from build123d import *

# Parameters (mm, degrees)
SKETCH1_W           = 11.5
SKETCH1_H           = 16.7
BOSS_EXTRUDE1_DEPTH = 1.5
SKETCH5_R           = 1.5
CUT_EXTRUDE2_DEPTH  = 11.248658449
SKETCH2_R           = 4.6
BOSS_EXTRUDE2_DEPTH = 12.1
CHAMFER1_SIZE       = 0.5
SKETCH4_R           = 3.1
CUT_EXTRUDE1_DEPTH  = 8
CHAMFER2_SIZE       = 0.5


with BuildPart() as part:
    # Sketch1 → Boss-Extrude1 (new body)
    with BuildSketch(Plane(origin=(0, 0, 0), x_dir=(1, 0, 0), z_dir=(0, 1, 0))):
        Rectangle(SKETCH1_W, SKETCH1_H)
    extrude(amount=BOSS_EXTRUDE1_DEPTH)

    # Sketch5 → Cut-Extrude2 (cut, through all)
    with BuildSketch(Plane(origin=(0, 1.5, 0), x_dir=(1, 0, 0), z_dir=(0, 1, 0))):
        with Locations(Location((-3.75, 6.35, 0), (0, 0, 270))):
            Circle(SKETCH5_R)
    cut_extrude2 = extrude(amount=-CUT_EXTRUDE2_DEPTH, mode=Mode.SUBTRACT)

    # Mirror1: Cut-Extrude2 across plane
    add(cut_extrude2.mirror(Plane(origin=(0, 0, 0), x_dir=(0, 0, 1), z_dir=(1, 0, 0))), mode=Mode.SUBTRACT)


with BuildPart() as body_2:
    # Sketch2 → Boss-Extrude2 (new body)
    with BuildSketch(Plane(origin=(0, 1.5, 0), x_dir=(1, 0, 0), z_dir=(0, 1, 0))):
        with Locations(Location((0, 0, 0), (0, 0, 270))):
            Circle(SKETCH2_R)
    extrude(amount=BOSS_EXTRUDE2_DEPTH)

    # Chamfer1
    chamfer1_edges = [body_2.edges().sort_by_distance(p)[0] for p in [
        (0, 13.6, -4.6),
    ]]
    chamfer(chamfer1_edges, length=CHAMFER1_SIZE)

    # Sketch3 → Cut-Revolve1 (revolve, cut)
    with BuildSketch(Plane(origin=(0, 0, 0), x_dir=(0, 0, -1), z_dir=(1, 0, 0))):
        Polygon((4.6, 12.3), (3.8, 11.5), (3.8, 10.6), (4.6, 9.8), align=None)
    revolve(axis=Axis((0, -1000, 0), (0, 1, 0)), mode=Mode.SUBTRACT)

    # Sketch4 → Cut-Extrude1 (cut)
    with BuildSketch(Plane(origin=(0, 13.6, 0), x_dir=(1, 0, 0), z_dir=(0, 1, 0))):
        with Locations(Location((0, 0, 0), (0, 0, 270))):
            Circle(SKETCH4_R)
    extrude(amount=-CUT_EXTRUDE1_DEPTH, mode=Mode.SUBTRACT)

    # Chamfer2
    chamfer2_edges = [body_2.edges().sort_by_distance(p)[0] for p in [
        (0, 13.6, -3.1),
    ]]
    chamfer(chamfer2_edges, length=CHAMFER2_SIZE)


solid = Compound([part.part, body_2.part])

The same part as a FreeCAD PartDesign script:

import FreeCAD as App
import Part
import Sketcher


def edges_at(feature, points):
    """Names of the edges that pass closest to the given points."""
    edges = feature.Shape.Edges
    near = lambda p: min(range(len(edges)), key=lambda i: edges[i].distToShape(Part.Vertex(*p))[0])
    return sorted({f"Edge{near(p) + 1}" for p in points})

doc = App.newDocument("Part")
params = doc.addObject("Spreadsheet::Sheet", "Params")
for row, (alias, value) in enumerate([
    ("sketch1_width", "11.5 mm"),
    ("sketch1_height", "16.7 mm"),
    ("pad1_length", "1.5 mm"),
    ("sketch2_diameter", "3 mm"),
    ("sketch3_diameter", "9.2 mm"),
    ("pad2_length", "12.1 mm"),
    ("chamfer_size", "0.5 mm"),
    ("sketch4_width", "0.9 mm"),
    ("sketch4_width2", "2.5 mm"),
    ("groove_angle", "360 deg"),
    ("sketch5_diameter", "6.2 mm"),
    ("pocket2_length", "8 mm"),
    ("chamfer2_size", "0.5 mm"),
], start=1):
    params.set(f"A{row}", alias)
    params.set(f"B{row}", "=" + value)
    params.setAlias(f"B{row}", alias)

body = doc.addObject("PartDesign::Body", "Body")

# Sketch on XZ plane
sketch1 = doc.addObject("Sketcher::SketchObject", "Sketch")
body.addObject(sketch1)
sketch1.AttachmentSupport = (doc.XZ_Plane, [""])
sketch1.MapMode = "FlatFace"
sketch1.addGeometry([
    Part.LineSegment(App.Vector(-6, -8, 0), App.Vector(-6, 8, 0)),
    Part.LineSegment(App.Vector(-6, 8, 0), App.Vector(6, 8, 0)),
    Part.LineSegment(App.Vector(6, 8, 0), App.Vector(6, -8, 0)),
    Part.LineSegment(App.Vector(6, -8, 0), App.Vector(-6, -8, 0)),
], False)
sketch1.addConstraint([
    Sketcher.Constraint("Coincident", 0, 2, 1, 1),
    Sketcher.Constraint("Coincident", 1, 2, 2, 1),
    Sketcher.Constraint("Coincident", 2, 2, 3, 1),
    Sketcher.Constraint("Coincident", 3, 2, 0, 1),
    Sketcher.Constraint("Vertical", 0),
    Sketcher.Constraint("Horizontal", 1),
    Sketcher.Constraint("Vertical", 2),
    Sketcher.Constraint("Horizontal", 3),
    Sketcher.Constraint("Symmetric", 0, 2, 2, 2, -1, 1),
    Sketcher.Constraint("DistanceX", 1, 1, 1, 2, 11.5),
    Sketcher.Constraint("DistanceY", 0, 1, 0, 2, 16.7),
])
sketch1.setExpression("Constraints[9]", "Params.sketch1_width")
sketch1.setExpression("Constraints[10]", "Params.sketch1_height")
pad1 = doc.addObject("PartDesign::Pad", "Pad")
body.addObject(pad1)
pad1.Profile = sketch1
pad1.setExpression("Length", "Params.pad1_length")
pad1.Reversed = True

# Sketch on XZ plane
sketch2 = doc.addObject("Sketcher::SketchObject", "Sketch001")
body.addObject(sketch2)
sketch2.AttachmentSupport = (doc.XZ_Plane, [""])
sketch2.MapMode = "FlatFace"
sketch2.AttachmentOffset = App.Placement(App.Vector(0, 0, -1.5), App.Rotation())
sketch2.addGeometry(Part.Circle(App.Vector(-3.8, -6.3, 0), App.Vector(0, 0, 1), 1.5), False)
sketch2.addConstraint([
    Sketcher.Constraint("Diameter", 0, 3.0),
    Sketcher.Constraint("DistanceX", 0, 3, -1, 1, 3.75),
    Sketcher.Constraint("DistanceY", 0, 3, -1, 1, 6.35),
])
sketch2.setExpression("Constraints[0]", "Params.sketch2_diameter")
pocket1 = doc.addObject("PartDesign::Pocket", "Pocket")
body.addObject(pocket1)
pocket1.Profile = sketch2
pocket1.Type = "ThroughAll"
pocket1.Reversed = True
doc.recompute()

mirrored = doc.addObject("PartDesign::Mirrored", "Mirrored")
body.addObject(mirrored)
mirrored.Originals = [pocket1]
mirrored.MirrorPlane = (doc.YZ_Plane, [""])
body.Tip = mirrored
body2 = doc.addObject("PartDesign::Body", "Body001")

# Sketch on XZ plane
sketch3 = doc.addObject("Sketcher::SketchObject", "Sketch002")
body2.addObject(sketch3)
sketch3.AttachmentSupport = (doc.getObject("XZ_Plane001"), [""])
sketch3.MapMode = "FlatFace"
sketch3.AttachmentOffset = App.Placement(App.Vector(0, 0, -1.5), App.Rotation())
sketch3.addGeometry(Part.Circle(App.Vector(0, 0, 0), App.Vector(0, 0, 1), 4.6), False)
sketch3.addConstraint([
    Sketcher.Constraint("Coincident", 0, 3, -1, 1),
    Sketcher.Constraint("Diameter", 0, 9.2),
])
sketch3.setExpression("Constraints[1]", "Params.sketch3_diameter")
pad2 = doc.addObject("PartDesign::Pad", "Pad001")
body2.addObject(pad2)
pad2.Profile = sketch3
pad2.setExpression("Length", "Params.pad2_length")
pad2.Reversed = True
doc.recompute()

chamfer = doc.addObject("PartDesign::Chamfer", "Chamfer")
body2.addObject(chamfer)
chamfer.Base = (pad2, edges_at(pad2, [(0, 13.6, -4.6)]))
chamfer.setExpression("Size", "Params.chamfer_size")

# Sketch on YZ plane
sketch4 = doc.addObject("Sketcher::SketchObject", "Sketch003")
body2.addObject(sketch4)
sketch4.AttachmentSupport = (doc.getObject("YZ_Plane001"), [""])
sketch4.MapMode = "FlatFace"
sketch4.addGeometry([
    Part.LineSegment(App.Vector(12.3, -4.6, 0), App.Vector(11.5, -3.8, 0)),
    Part.LineSegment(App.Vector(11.5, -3.8, 0), App.Vector(10.6, -3.8, 0)),
    Part.LineSegment(App.Vector(10.6, -3.8, 0), App.Vector(9.8, -4.6, 0)),
    Part.LineSegment(App.Vector(9.8, -4.6, 0), App.Vector(12.3, -4.6, 0)),
], False)
sketch4.addConstraint([
    Sketcher.Constraint("Coincident", 0, 2, 1, 1),
    Sketcher.Constraint("Coincident", 1, 2, 2, 1),
    Sketcher.Constraint("Coincident", 2, 2, 3, 1),
    Sketcher.Constraint("Coincident", 3, 2, 0, 1),
    Sketcher.Constraint("Horizontal", 1),
    Sketcher.Constraint("Horizontal", 3),
    Sketcher.Constraint("Perpendicular", 0, 2),
    Sketcher.Constraint("Equal", 0, 2),
    Sketcher.Constraint("DistanceX", 1, 2, 1, 1, 0.9),
    Sketcher.Constraint("DistanceX", 3, 1, 3, 2, 2.5),
    Sketcher.Constraint("DistanceX", -1, 1, 0, 2, 11.5),
    Sketcher.Constraint("DistanceY", 0, 2, -1, 1, 3.8),
])
sketch4.setExpression("Constraints[8]", "Params.sketch4_width")
sketch4.setExpression("Constraints[9]", "Params.sketch4_width2")
groove = doc.addObject("PartDesign::Groove", "Groove")
body2.addObject(groove)
groove.Profile = sketch4
groove.ReferenceAxis = (sketch4, ["H_Axis"])
groove.setExpression("Angle", "Params.groove_angle")

# Sketch on XZ plane
sketch5 = doc.addObject("Sketcher::SketchObject", "Sketch004")
body2.addObject(sketch5)
sketch5.AttachmentSupport = (doc.getObject("XZ_Plane001"), [""])
sketch5.MapMode = "FlatFace"
sketch5.AttachmentOffset = App.Placement(App.Vector(0, 0, -13.6), App.Rotation())
sketch5.addGeometry(Part.Circle(App.Vector(0, 0, 0), App.Vector(0, 0, 1), 3.1), False)
sketch5.addConstraint([
    Sketcher.Constraint("Coincident", 0, 3, -1, 1),
    Sketcher.Constraint("Diameter", 0, 6.2),
])
sketch5.setExpression("Constraints[1]", "Params.sketch5_diameter")
pocket2 = doc.addObject("PartDesign::Pocket", "Pocket001")
body2.addObject(pocket2)
pocket2.Profile = sketch5
pocket2.setExpression("Length", "Params.pocket2_length")
pocket2.Reversed = True
doc.recompute()

chamfer2 = doc.addObject("PartDesign::Chamfer", "Chamfer001")
body2.addObject(chamfer2)
chamfer2.Base = (pocket2, edges_at(pocket2, [(0, 13.6, -3.1)]))
chamfer2.setExpression("Size", "Params.chamfer2_size")

doc.recompute()
